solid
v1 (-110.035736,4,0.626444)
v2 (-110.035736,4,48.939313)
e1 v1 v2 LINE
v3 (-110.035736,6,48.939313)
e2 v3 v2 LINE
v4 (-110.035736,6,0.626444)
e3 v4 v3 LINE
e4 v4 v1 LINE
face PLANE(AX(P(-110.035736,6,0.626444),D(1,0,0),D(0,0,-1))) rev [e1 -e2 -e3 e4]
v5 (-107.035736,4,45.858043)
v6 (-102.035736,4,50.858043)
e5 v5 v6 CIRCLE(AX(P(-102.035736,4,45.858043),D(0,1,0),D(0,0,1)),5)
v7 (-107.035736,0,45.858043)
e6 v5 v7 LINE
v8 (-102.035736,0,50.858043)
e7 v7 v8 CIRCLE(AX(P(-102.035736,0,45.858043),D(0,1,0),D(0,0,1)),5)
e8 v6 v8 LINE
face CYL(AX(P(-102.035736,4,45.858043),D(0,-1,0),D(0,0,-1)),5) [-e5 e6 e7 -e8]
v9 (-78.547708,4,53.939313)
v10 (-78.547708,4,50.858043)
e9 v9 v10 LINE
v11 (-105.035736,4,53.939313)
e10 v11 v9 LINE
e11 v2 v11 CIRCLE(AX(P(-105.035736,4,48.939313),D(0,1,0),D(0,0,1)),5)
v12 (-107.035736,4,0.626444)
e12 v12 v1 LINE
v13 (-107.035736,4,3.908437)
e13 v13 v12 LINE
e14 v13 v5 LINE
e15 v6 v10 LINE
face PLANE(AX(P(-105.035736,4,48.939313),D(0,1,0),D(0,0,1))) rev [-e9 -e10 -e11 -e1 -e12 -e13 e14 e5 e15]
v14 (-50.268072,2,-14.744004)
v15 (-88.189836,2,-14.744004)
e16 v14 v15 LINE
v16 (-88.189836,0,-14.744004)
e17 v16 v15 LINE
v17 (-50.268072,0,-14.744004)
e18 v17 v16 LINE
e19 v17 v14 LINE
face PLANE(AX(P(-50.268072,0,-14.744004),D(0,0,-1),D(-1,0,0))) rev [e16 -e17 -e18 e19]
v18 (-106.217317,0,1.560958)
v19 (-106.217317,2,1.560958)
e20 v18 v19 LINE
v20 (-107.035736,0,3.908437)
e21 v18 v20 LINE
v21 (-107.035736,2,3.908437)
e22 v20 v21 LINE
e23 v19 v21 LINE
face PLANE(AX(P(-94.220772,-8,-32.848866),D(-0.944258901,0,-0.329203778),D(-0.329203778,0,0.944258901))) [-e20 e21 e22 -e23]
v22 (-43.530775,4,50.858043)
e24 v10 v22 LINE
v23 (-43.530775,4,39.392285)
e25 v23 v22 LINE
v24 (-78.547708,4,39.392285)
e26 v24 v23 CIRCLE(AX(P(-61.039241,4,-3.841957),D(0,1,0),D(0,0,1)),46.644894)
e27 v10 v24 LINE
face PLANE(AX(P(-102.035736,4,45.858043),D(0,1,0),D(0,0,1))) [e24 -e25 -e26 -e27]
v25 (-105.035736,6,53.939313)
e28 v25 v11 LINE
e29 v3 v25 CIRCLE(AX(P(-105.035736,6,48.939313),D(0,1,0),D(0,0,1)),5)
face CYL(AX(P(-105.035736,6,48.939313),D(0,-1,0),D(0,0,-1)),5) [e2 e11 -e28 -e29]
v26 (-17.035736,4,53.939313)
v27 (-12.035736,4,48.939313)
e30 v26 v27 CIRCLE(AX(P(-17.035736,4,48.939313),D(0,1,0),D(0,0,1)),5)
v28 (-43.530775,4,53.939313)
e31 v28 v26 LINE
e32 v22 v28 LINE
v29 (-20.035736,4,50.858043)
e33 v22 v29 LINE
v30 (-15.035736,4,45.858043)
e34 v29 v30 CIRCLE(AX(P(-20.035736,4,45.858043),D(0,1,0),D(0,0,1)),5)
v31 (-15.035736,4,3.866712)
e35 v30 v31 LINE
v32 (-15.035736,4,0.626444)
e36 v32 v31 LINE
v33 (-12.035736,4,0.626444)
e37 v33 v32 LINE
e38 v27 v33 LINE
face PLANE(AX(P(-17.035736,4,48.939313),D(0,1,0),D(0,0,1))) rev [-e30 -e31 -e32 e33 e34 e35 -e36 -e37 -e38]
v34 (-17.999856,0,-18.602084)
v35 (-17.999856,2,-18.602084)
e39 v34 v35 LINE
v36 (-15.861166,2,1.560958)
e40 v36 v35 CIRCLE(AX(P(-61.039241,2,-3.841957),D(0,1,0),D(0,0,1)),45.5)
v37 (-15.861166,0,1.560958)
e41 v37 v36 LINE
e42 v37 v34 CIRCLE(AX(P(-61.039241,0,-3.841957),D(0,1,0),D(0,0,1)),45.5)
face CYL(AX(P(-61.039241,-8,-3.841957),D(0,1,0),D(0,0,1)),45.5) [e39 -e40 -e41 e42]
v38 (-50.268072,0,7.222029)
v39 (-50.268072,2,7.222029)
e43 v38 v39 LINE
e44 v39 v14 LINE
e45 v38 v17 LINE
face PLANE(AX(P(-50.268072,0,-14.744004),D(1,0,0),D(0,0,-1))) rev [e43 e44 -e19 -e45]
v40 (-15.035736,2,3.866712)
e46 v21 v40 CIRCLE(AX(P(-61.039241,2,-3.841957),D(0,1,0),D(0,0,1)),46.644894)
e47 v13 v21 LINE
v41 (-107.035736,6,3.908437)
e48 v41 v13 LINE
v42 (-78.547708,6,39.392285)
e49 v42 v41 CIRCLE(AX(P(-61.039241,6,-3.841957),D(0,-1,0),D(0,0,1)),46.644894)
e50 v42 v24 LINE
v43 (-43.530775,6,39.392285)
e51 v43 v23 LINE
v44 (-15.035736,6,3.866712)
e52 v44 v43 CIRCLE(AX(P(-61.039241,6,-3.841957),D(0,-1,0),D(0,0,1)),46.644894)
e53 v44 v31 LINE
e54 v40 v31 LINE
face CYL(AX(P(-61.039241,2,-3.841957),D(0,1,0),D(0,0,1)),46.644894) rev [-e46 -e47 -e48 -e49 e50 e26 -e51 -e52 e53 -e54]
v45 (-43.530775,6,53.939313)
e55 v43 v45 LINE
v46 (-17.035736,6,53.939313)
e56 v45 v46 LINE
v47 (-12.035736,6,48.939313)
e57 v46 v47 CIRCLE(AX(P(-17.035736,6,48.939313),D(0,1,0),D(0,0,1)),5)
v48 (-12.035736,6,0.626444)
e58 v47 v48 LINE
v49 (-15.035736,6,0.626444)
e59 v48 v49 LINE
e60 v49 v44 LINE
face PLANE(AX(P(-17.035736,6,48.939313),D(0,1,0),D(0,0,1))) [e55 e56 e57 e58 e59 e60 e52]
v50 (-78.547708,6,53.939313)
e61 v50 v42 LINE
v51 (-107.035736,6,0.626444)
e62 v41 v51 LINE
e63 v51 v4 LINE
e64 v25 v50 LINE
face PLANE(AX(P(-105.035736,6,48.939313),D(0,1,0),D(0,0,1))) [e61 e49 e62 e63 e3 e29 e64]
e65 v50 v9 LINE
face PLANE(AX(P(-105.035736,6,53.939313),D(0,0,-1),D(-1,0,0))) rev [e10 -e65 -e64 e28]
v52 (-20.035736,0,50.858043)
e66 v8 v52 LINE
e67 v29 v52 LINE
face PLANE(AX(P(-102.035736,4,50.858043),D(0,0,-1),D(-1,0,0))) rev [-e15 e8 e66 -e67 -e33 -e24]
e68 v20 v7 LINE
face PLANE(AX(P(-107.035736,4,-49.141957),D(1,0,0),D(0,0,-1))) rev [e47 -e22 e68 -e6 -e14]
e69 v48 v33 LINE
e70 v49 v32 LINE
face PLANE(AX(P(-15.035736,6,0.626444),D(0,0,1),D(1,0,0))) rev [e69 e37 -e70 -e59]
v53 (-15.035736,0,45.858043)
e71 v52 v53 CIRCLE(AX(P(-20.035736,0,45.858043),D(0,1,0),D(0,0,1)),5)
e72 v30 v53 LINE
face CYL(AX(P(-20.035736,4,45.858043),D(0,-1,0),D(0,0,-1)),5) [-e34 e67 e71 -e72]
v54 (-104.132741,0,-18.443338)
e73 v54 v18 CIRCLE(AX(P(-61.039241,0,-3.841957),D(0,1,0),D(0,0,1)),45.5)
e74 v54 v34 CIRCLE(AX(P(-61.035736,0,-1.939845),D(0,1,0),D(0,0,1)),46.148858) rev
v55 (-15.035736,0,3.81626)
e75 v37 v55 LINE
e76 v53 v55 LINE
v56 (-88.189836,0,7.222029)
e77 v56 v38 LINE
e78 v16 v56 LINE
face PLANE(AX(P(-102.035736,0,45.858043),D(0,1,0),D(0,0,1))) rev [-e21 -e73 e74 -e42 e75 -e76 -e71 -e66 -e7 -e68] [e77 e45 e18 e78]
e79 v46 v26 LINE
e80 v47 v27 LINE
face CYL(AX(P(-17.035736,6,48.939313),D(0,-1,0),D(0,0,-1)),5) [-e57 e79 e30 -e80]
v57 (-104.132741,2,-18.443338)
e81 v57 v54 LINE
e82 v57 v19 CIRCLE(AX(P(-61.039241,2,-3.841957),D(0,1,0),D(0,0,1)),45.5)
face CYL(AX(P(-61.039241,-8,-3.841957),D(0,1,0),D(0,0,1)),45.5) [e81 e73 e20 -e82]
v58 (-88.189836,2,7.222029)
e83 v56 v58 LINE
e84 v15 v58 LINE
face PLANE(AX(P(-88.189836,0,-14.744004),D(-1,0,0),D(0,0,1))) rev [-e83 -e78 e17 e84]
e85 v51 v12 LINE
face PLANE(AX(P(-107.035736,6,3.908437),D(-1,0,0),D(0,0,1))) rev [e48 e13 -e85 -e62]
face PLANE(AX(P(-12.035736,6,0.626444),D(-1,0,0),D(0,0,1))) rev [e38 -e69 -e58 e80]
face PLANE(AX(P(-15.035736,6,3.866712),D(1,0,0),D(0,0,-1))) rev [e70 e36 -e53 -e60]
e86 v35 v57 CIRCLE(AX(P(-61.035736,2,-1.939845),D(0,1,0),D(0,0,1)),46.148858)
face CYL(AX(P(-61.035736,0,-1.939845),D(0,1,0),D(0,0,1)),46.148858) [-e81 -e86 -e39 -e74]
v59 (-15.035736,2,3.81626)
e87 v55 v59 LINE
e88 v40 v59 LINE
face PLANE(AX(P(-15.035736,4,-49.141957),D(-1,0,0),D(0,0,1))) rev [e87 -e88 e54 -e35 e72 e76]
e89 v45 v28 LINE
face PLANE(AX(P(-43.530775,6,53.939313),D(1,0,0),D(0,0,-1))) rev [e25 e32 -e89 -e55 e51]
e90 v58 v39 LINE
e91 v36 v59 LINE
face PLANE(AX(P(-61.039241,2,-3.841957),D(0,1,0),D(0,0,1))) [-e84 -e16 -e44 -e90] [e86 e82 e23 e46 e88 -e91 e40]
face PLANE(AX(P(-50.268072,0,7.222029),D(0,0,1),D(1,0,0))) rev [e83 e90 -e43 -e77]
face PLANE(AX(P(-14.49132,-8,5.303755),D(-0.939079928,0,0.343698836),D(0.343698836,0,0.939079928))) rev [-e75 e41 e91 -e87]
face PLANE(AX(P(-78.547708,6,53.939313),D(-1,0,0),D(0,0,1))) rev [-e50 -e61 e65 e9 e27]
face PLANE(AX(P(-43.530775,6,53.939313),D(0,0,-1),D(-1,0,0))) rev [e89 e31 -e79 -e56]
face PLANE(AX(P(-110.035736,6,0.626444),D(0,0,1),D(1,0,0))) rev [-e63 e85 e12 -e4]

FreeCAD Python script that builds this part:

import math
import FreeCAD as App
import Part
import Sketcher

V = App.Vector

doc = App.newDocument("Part")
params = doc.addObject("Spreadsheet::Sheet", "Params")
for row, (alias, value) in enumerate([
    ("sketch1_radius", "5 mm"),
    ("sketch1_width", "92 mm"),
    ("sketch1_height", "95 mm"),
    ("pad1_length", "4 mm"),
    ("pocket1_length", "4 mm"),
    ("pocket2_length", "2 mm"),
    ("pocket3_length", "2 mm"),
    ("sketch5_radius", "45.5 mm"),
    ("pocket4_length", "10 mm"),
    ("sketch6_radius", "5 mm"),
    ("sketch6_width", "3 mm"),
    ("pad2_length", "2 mm"),
], start=1):
    params.set(f"A{row}", alias)
    params.set(f"B{row}", "=" + value)
    params.setAlias(f"B{row}", alias)

body = doc.addObject("PartDesign::Body", "Body")

# Sketch on XZ plane
sketch1 = body.newObject("Sketcher::SketchObject", "Sketch")
sketch1.AttachmentSupport = (doc.getObject("XZ_Plane"), [""])
sketch1.MapMode = "FlatFace"
sketch1.addGeometry(Part.LineSegment(V(-15, -49, 0), V(-107, -49, 0)), False)
sketch1.addGeometry(Part.LineSegment(V(-107, -49, 0), V(-107, 46, 0)), False)
sketch1.addGeometry(Part.ArcOfCircle(Part.Circle(V(-102, 46, 0), V(0, 0, 1), 5), math.radians(90), math.radians(180)), False)
sketch1.addGeometry(Part.LineSegment(V(-102, 51, 0), V(-20, 51, 0)), False)
sketch1.addGeometry(Part.ArcOfCircle(Part.Circle(V(-20, 46, 0), V(0, 0, 1), 5), math.radians(0), math.radians(90)), False)
sketch1.addGeometry(Part.LineSegment(V(-15, 46, 0), V(-15, -49, 0)), False)
sketch1.addConstraint(Sketcher.Constraint("Coincident", 0, 2, 1, 1))
sketch1.addConstraint(Sketcher.Constraint("Tangent", 1, 2, 2, 2))
sketch1.addConstraint(Sketcher.Constraint("Tangent", 2, 1, 3, 1))
sketch1.addConstraint(Sketcher.Constraint("Tangent", 3, 2, 4, 2))
sketch1.addConstraint(Sketcher.Constraint("Tangent", 4, 1, 5, 1))
sketch1.addConstraint(Sketcher.Constraint("Coincident", 5, 2, 0, 1))
sketch1.addConstraint(Sketcher.Constraint("Horizontal", 0))
sketch1.addConstraint(Sketcher.Constraint("Vertical", 1))
sketch1.addConstraint(Sketcher.Constraint("Horizontal", 3))
sketch1.addConstraint(Sketcher.Constraint("Vertical", 5))
sketch1.addConstraint(Sketcher.Constraint("Equal", 2, 4))
sketch1.addConstraint(Sketcher.Constraint("Radius", 2, 5.0))
sketch1.addConstraint(Sketcher.Constraint("DistanceX", 0, 2, 0, 1, 92.0))
sketch1.addConstraint(Sketcher.Constraint("DistanceY", 1, 1, 1, 2, 95.0))
sketch1.addConstraint(Sketcher.Constraint("DistanceX", 2, 3, -1, 1, 102.035736))
sketch1.addConstraint(Sketcher.Constraint("DistanceY", -1, 1, 2, 3, 45.858043))
sketch1.setExpression("Constraints[11]", "Params.sketch1_radius")
sketch1.setExpression("Constraints[12]", "Params.sketch1_width")
sketch1.setExpression("Constraints[13]", "Params.sketch1_height")
pad1 = body.newObject("PartDesign::Pad", "Pad")
pad1.Profile = sketch1
pad1.setExpression("Length", "Params.pad1_length")
pad1.Reversed = True

# Sketch on XZ plane
sketch2 = body.newObject("Sketcher::SketchObject", "Sketch001")
sketch2.AttachmentSupport = (doc.getObject("XZ_Plane"), [""])
sketch2.MapMode = "FlatFace"
sketch2.AttachmentOffset = App.Placement(V(0, 0, -4), App.Rotation())
sketch2.addGeometry(Part.LineSegment(V(-1, -54, 0), V(-122, -54, 0)), False)
sketch2.addGeometry(Part.LineSegment(V(-122, -54, 0), V(-116, 2, 0)), False)
sketch2.addGeometry(Part.LineSegment(V(-116, 2, 0), V(-107, 2, 0)), False)
sketch2.addGeometry(Part.ArcOfCircle(Part.Circle(V(-61, -2, 0), V(0, 0, 1), 46), math.radians(175), math.radians(365)), False)
sketch2.addGeometry(Part.LineSegment(V(-15, 2, 0), V(-1, 2, 0)), False)
sketch2.addGeometry(Part.LineSegment(V(-1, 2, 0), V(-1, -54, 0)), False)
sketch2.addConstraint(Sketcher.Constraint("Coincident", 0, 2, 1, 1))
sketch2.addConstraint(Sketcher.Constraint("Coincident", 1, 2, 2, 1))
sketch2.addConstraint(Sketcher.Constraint("Coincident", 2, 2, 3, 1))
sketch2.addConstraint(Sketcher.Constraint("Coincident", 3, 2, 4, 1))
sketch2.addConstraint(Sketcher.Constraint("Coincident", 4, 2, 5, 1))
sketch2.addConstraint(Sketcher.Constraint("Coincident", 5, 2, 0, 1))
sketch2.addConstraint(Sketcher.Constraint("Horizontal", 0))
sketch2.addConstraint(Sketcher.Constraint("Horizontal", 2))
sketch2.addConstraint(Sketcher.Constraint("Horizontal", 4))
sketch2.addConstraint(Sketcher.Constraint("Vertical", 5))
sketch2.addConstraint(Sketcher.Constraint("Horizontal", 2, 2, 3, 2))
sketch2.addConstraint(Sketcher.Constraint("DistanceX", 2, 2, 3, 3, 46.0))
sketch2.addConstraint(Sketcher.Constraint("Radius", 3, 46.148858))
sketch2.addConstraint(Sketcher.Constraint("DistanceX", 0, 2, 0, 1, 121.303026))
sketch2.addConstraint(Sketcher.Constraint("DistanceX", 2, 1, 2, 2, 9.170204))
sketch2.addConstraint(Sketcher.Constraint("DistanceX", 4, 1, 4, 2, 14.154654))
sketch2.addConstraint(Sketcher.Constraint("DistanceY", 5, 2, 5, 1, 56.076026))
sketch2.addConstraint(Sketcher.Constraint("DistanceX", 1, 2, -1, 1, 116.20594))
sketch2.addConstraint(Sketcher.Constraint("DistanceY", -1, 1, 1, 2, 1.763819))
pocket1 = body.newObject("PartDesign::Pocket", "Pocket")
pocket1.Profile = sketch2
pocket1.setExpression("Length", "Params.pocket1_length")
pocket1.Reversed = True

# Sketch on XZ plane
sketch3 = body.newObject("Sketcher::SketchObject", "Sketch002")
sketch3.AttachmentSupport = (doc.getObject("XZ_Plane"), [""])
sketch3.MapMode = "FlatFace"
sketch3.AttachmentOffset = App.Placement(V(0, 0, -4), App.Rotation())
sketch3.addGeometry(Part.Circle(V(-61, -4, 0), V(0, 0, 1), 47), False)
sketch3.addConstraint(Sketcher.Constraint("Diameter", 0, 93.289787))
sketch3.addConstraint(Sketcher.Constraint("DistanceX", 0, 3, -1, 1, 61.039241))
sketch3.addConstraint(Sketcher.Constraint("DistanceY", 0, 3, -1, 1, 3.841957))
pocket2 = body.newObject("PartDesign::Pocket", "Pocket001")
pocket2.Profile = sketch3
pocket2.setExpression("Length", "Params.pocket2_length")
pocket2.Reversed = True

# Sketch on XZ plane
sketch4 = body.newObject("Sketcher::SketchObject", "Sketch003")
sketch4.AttachmentSupport = (doc.getObject("XZ_Plane"), [""])
sketch4.MapMode = "FlatFace"
sketch4.AttachmentOffset = App.Placement(V(0, 0, -2), App.Rotation())
sketch4.addGeometry(Part.LineSegment(V(-88, -15, 0), V(-88, 7, 0)), False)
sketch4.addGeometry(Part.LineSegment(V(-88, 7, 0), V(-50, 7, 0)), False)
sketch4.addGeometry(Part.LineSegment(V(-50, 7, 0), V(-50, -15, 0)), False)
sketch4.addGeometry(Part.LineSegment(V(-50, -15, 0), V(-88, -15, 0)), False)
sketch4.addConstraint(Sketcher.Constraint("Coincident", 0, 2, 1, 1))
sketch4.addConstraint(Sketcher.Constraint("Coincident", 1, 2, 2, 1))
sketch4.addConstraint(Sketcher.Constraint("Coincident", 2, 2, 3, 1))
sketch4.addConstraint(Sketcher.Constraint("Coincident", 3, 2, 0, 1))
sketch4.addConstraint(Sketcher.Constraint("Vertical", 0))
sketch4.addConstraint(Sketcher.Constraint("Horizontal", 1))
sketch4.addConstraint(Sketcher.Constraint("Vertical", 2))
sketch4.addConstraint(Sketcher.Constraint("Horizontal", 3))
sketch4.addConstraint(Sketcher.Constraint("DistanceX", 1, 1, 1, 2, 37.921764))
sketch4.addConstraint(Sketcher.Constraint("DistanceY", 0, 1, 0, 2, 21.966034))
sketch4.addConstraint(Sketcher.Constraint("DistanceY", -1, 1, 0, 2, 7.222029))
sketch4.addConstraint(Sketcher.Constraint("DistanceX", 0, 2, -1, 1, 88.189836))
pocket3 = body.newObject("PartDesign::Pocket", "Pocket002")
pocket3.Profile = sketch4
pocket3.setExpression("Length", "Params.pocket3_length")
pocket3.Reversed = True

# Sketch on XZ plane
sketch5 = body.newObject("Sketcher::SketchObject", "Sketch004")
sketch5.AttachmentSupport = (doc.getObject("XZ_Plane"), [""])
sketch5.MapMode = "FlatFace"
sketch5.AttachmentOffset = App.Placement(V(0, 0, -2), App.Rotation())
sketch5.addGeometry(Part.LineSegment(V(-107, 3.9, 0), V(-106.2, 1.6, 0)), False)
sketch5.addGeometry(Part.ArcOfCircle(Part.Circle(V(-61, -3.8, 0), V(0, 0, 1), 45.5), math.radians(173), math.radians(367)), False)
sketch5.addGeometry(Part.LineSegment(V(-15.9, 1.6, 0), V(-15, 3.8, 0)), False)
sketch5.addGeometry(Part.LineSegment(V(-15, 3.8, 0), V(-12, 1.6, 0)), False)
sketch5.addGeometry(Part.ArcOfCircle(Part.Circle(V(-61, -3.8, 0), V(0, 0, 1), 49.4), math.radians(174), math.radians(366)), False)
sketch5.addGeometry(Part.LineSegment(V(-110.1, 1.6, 0), V(-107, 3.9, 0)), False)
sketch5.addConstraint(Sketcher.Constraint("Coincident", 0, 2, 1, 1))
sketch5.addConstraint(Sketcher.Constraint("Coincident", 1, 2, 2, 1))
sketch5.addConstraint(Sketcher.Constraint("Coincident", 2, 2, 3, 1))
sketch5.addConstraint(Sketcher.Constraint("Coincident", 3, 2, 4, 2))
sketch5.addConstraint(Sketcher.Constraint("Coincident", 4, 1, 5, 1))
sketch5.addConstraint(Sketcher.Constraint("Coincident", 5, 2, 0, 1))
sketch5.addConstraint(Sketcher.Constraint("Coincident", 4, 3, 1, 3))
sketch5.addConstraint(Sketcher.Constraint("Horizontal", 0, 2, 1, 2))
sketch5.addConstraint(Sketcher.Constraint("Horizontal", 1, 2, 3, 2))
sketch5.addConstraint(Sketcher.Constraint("Horizontal", 3, 2, 4, 1))
sketch5.addConstraint(Sketcher.Constraint("Radius", 1, 45.5))
sketch5.addConstraint(Sketcher.Constraint("Radius", 4, 49.375318))
sketch5.addConstraint(Sketcher.Constraint("Distance", 2, 2.401609))
sketch5.addConstraint(Sketcher.Constraint("DistanceX", 1, 3, -1, 1, 61.039241))
sketch5.addConstraint(Sketcher.Constraint("DistanceY", -1, 1, 2, 2, 3.81626))
sketch5.addConstraint(Sketcher.Constraint("DistanceX", 4, 1, -1, 1, 110.118061))
sketch5.addConstraint(Sketcher.Constraint("DistanceX", 1, 2, 2, 2, 0.82543))
sketch5.addConstraint(Sketcher.Constraint("DistanceX", 5, 2, 0, 2, 0.818419))
sketch5.addConstraint(Sketcher.Constraint("DistanceY", 0, 2, 5, 2, 2.34748))
sketch5.setExpression("Constraints[10]", "Params.sketch5_radius")
pocket4 = body.newObject("PartDesign::Pocket", "Pocket003")
pocket4.Profile = sketch5
pocket4.setExpression("Length", "Params.pocket4_length")
pocket4.Reversed = True

# Sketch on XZ plane
sketch6 = body.newObject("Sketcher::SketchObject", "Sketch005")
sketch6.AttachmentSupport = (doc.getObject("XZ_Plane"), [""])
sketch6.MapMode = "FlatFace"
sketch6.AttachmentOffset = App.Placement(V(0, 0, -4), App.Rotation())
sketch6.addGeometry(Part.LineSegment(V(-107, 0.6, 0), V(-110, 0.6, 0)), False)
sketch6.addGeometry(Part.LineSegment(V(-110, 0.6, 0), V(-110, 48.9, 0)), False)
sketch6.addGeometry(Part.ArcOfCircle(Part.Circle(V(-105, 48.9, 0), V(0, 0, 1), 5), math.radians(90), math.radians(180)), False)
sketch6.addGeometry(Part.LineSegment(V(-105, 53.9, 0), V(-78.5, 53.9, 0)), False)
sketch6.addGeometry(Part.LineSegment(V(-78.5, 53.9, 0), V(-78.5, 39.4, 0)), False)
sketch6.addGeometry(Part.ArcOfCircle(Part.Circle(V(-61, -3.8, 0), V(0, 0, 1), 46.6), math.radians(112), math.radians(170)), False)
sketch6.addGeometry(Part.LineSegment(V(-107, 3.9, 0), V(-107, 0.6, 0)), False)
sketch6.addGeometry(Part.LineSegment(V(-12, 48.9, 0), V(-12, 0.6, 0)), False)
sketch6.addGeometry(Part.LineSegment(V(-12, 0.6, 0), V(-15, 0.6, 0)), False)
sketch6.addGeometry(Part.LineSegment(V(-15, 0.6, 0), V(-15, 3.9, 0)), False)
sketch6.addGeometry(Part.ArcOfCircle(Part.Circle(V(-61, -3.8, 0), V(0, 0, 1), 46.6), math.radians(10), math.radians(68)), False)
sketch6.addGeometry(Part.LineSegment(V(-43.5, 39.4, 0), V(-43.5, 53.9, 0)), False)
sketch6.addGeometry(Part.LineSegment(V(-43.5, 53.9, 0), V(-17, 53.9, 0)), False)
sketch6.addGeometry(Part.ArcOfCircle(Part.Circle(V(-17, 48.9, 0), V(0, 0, 1), 5), math.radians(0), math.radians(90)), False)
sketch6.addConstraint(Sketcher.Constraint("Coincident", 0, 2, 1, 1))
sketch6.addConstraint(Sketcher.Constraint("Tangent", 1, 2, 2, 2))
sketch6.addConstraint(Sketcher.Constraint("Tangent", 2, 1, 3, 1))
sketch6.addConstraint(Sketcher.Constraint("Coincident", 3, 2, 4, 1))
sketch6.addConstraint(Sketcher.Constraint("Coincident", 4, 2, 5, 1))
sketch6.addConstraint(Sketcher.Constraint("Coincident", 5, 2, 6, 1))
sketch6.addConstraint(Sketcher.Constraint("Coincident", 6, 2, 0, 1))
sketch6.addConstraint(Sketcher.Constraint("Coincident", 7, 2, 8, 1))
sketch6.addConstraint(Sketcher.Constraint("Coincident", 8, 2, 9, 1))
sketch6.addConstraint(Sketcher.Constraint("Coincident", 9, 2, 10, 1))
sketch6.addConstraint(Sketcher.Constraint("Coincident", 10, 2, 11, 1))
sketch6.addConstraint(Sketcher.Constraint("Coincident", 11, 2, 12, 1))
sketch6.addConstraint(Sketcher.Constraint("Tangent", 12, 2, 13, 2))
sketch6.addConstraint(Sketcher.Constraint("Tangent", 13, 1, 7, 1))
sketch6.addConstraint(Sketcher.Constraint("Horizontal", 0))
sketch6.addConstraint(Sketcher.Constraint("Vertical", 1))
sketch6.addConstraint(Sketcher.Constraint("Horizontal", 3))
sketch6.addConstraint(Sketcher.Constraint("Vertical", 4))
sketch6.addConstraint(Sketcher.Constraint("Vertical", 6))
sketch6.addConstraint(Sketcher.Constraint("Vertical", 7))
sketch6.addConstraint(Sketcher.Constraint("Horizontal", 8))
sketch6.addConstraint(Sketcher.Constraint("Vertical", 9))
sketch6.addConstraint(Sketcher.Constraint("Vertical", 11))
sketch6.addConstraint(Sketcher.Constraint("Horizontal", 12))
sketch6.addConstraint(Sketcher.Constraint("Coincident", 10, 3, 5, 3))
sketch6.addConstraint(Sketcher.Constraint("Equal", 5, 10))
sketch6.addConstraint(Sketcher.Constraint("Equal", 2, 13))
sketch6.addConstraint(Sketcher.Constraint("Horizontal", 2, 3, 13, 3))
sketch6.addConstraint(Sketcher.Constraint("Horizontal", 6, 2, 7, 2))
sketch6.addConstraint(Sketcher.Constraint("Horizontal", 4, 2, 10, 2))
sketch6.addConstraint(Sketcher.Constraint("Equal", 0, 8))
sketch6.addConstraint(Sketcher.Constraint("Radius", 2, 5.0))
sketch6.addConstraint(Sketcher.Constraint("DistanceX", 0, 2, 0, 1, 3.0))
sketch6.addConstraint(Sketcher.Constraint("DistanceX", 2, 3, 13, 3, 88.0))
sketch6.addConstraint(Sketcher.Constraint("Radius", 5, 46.644894))
sketch6.addConstraint(Sketcher.Constraint("DistanceX", 3, 1, 3, 2, 26.488028))
sketch6.addConstraint(Sketcher.Constraint("DistanceX", 12, 1, 12, 2, 26.495039))
sketch6.addConstraint(Sketcher.Constraint("DistanceY", 1, 1, 1, 2, 48.312869))
sketch6.addConstraint(Sketcher.Constraint("DistanceY", 10, 3, 0, 2, 4.468401))
sketch6.addConstraint(Sketcher.Constraint("DistanceX", 5, 3, -1, 1, 61.039241))
sketch6.addConstraint(Sketcher.Constraint("DistanceY", -1, 1, 9, 2, 3.866712))
sketch6.setExpression("Constraints[31]", "Params.sketch6_radius")
sketch6.setExpression("Constraints[32]", "Params.sketch6_width")
pad2 = body.newObject("PartDesign::Pad", "Pad001")
pad2.Profile = sketch6
pad2.setExpression("Length", "Params.pad2_length")
pad2.Reversed = True

doc.recompute()
